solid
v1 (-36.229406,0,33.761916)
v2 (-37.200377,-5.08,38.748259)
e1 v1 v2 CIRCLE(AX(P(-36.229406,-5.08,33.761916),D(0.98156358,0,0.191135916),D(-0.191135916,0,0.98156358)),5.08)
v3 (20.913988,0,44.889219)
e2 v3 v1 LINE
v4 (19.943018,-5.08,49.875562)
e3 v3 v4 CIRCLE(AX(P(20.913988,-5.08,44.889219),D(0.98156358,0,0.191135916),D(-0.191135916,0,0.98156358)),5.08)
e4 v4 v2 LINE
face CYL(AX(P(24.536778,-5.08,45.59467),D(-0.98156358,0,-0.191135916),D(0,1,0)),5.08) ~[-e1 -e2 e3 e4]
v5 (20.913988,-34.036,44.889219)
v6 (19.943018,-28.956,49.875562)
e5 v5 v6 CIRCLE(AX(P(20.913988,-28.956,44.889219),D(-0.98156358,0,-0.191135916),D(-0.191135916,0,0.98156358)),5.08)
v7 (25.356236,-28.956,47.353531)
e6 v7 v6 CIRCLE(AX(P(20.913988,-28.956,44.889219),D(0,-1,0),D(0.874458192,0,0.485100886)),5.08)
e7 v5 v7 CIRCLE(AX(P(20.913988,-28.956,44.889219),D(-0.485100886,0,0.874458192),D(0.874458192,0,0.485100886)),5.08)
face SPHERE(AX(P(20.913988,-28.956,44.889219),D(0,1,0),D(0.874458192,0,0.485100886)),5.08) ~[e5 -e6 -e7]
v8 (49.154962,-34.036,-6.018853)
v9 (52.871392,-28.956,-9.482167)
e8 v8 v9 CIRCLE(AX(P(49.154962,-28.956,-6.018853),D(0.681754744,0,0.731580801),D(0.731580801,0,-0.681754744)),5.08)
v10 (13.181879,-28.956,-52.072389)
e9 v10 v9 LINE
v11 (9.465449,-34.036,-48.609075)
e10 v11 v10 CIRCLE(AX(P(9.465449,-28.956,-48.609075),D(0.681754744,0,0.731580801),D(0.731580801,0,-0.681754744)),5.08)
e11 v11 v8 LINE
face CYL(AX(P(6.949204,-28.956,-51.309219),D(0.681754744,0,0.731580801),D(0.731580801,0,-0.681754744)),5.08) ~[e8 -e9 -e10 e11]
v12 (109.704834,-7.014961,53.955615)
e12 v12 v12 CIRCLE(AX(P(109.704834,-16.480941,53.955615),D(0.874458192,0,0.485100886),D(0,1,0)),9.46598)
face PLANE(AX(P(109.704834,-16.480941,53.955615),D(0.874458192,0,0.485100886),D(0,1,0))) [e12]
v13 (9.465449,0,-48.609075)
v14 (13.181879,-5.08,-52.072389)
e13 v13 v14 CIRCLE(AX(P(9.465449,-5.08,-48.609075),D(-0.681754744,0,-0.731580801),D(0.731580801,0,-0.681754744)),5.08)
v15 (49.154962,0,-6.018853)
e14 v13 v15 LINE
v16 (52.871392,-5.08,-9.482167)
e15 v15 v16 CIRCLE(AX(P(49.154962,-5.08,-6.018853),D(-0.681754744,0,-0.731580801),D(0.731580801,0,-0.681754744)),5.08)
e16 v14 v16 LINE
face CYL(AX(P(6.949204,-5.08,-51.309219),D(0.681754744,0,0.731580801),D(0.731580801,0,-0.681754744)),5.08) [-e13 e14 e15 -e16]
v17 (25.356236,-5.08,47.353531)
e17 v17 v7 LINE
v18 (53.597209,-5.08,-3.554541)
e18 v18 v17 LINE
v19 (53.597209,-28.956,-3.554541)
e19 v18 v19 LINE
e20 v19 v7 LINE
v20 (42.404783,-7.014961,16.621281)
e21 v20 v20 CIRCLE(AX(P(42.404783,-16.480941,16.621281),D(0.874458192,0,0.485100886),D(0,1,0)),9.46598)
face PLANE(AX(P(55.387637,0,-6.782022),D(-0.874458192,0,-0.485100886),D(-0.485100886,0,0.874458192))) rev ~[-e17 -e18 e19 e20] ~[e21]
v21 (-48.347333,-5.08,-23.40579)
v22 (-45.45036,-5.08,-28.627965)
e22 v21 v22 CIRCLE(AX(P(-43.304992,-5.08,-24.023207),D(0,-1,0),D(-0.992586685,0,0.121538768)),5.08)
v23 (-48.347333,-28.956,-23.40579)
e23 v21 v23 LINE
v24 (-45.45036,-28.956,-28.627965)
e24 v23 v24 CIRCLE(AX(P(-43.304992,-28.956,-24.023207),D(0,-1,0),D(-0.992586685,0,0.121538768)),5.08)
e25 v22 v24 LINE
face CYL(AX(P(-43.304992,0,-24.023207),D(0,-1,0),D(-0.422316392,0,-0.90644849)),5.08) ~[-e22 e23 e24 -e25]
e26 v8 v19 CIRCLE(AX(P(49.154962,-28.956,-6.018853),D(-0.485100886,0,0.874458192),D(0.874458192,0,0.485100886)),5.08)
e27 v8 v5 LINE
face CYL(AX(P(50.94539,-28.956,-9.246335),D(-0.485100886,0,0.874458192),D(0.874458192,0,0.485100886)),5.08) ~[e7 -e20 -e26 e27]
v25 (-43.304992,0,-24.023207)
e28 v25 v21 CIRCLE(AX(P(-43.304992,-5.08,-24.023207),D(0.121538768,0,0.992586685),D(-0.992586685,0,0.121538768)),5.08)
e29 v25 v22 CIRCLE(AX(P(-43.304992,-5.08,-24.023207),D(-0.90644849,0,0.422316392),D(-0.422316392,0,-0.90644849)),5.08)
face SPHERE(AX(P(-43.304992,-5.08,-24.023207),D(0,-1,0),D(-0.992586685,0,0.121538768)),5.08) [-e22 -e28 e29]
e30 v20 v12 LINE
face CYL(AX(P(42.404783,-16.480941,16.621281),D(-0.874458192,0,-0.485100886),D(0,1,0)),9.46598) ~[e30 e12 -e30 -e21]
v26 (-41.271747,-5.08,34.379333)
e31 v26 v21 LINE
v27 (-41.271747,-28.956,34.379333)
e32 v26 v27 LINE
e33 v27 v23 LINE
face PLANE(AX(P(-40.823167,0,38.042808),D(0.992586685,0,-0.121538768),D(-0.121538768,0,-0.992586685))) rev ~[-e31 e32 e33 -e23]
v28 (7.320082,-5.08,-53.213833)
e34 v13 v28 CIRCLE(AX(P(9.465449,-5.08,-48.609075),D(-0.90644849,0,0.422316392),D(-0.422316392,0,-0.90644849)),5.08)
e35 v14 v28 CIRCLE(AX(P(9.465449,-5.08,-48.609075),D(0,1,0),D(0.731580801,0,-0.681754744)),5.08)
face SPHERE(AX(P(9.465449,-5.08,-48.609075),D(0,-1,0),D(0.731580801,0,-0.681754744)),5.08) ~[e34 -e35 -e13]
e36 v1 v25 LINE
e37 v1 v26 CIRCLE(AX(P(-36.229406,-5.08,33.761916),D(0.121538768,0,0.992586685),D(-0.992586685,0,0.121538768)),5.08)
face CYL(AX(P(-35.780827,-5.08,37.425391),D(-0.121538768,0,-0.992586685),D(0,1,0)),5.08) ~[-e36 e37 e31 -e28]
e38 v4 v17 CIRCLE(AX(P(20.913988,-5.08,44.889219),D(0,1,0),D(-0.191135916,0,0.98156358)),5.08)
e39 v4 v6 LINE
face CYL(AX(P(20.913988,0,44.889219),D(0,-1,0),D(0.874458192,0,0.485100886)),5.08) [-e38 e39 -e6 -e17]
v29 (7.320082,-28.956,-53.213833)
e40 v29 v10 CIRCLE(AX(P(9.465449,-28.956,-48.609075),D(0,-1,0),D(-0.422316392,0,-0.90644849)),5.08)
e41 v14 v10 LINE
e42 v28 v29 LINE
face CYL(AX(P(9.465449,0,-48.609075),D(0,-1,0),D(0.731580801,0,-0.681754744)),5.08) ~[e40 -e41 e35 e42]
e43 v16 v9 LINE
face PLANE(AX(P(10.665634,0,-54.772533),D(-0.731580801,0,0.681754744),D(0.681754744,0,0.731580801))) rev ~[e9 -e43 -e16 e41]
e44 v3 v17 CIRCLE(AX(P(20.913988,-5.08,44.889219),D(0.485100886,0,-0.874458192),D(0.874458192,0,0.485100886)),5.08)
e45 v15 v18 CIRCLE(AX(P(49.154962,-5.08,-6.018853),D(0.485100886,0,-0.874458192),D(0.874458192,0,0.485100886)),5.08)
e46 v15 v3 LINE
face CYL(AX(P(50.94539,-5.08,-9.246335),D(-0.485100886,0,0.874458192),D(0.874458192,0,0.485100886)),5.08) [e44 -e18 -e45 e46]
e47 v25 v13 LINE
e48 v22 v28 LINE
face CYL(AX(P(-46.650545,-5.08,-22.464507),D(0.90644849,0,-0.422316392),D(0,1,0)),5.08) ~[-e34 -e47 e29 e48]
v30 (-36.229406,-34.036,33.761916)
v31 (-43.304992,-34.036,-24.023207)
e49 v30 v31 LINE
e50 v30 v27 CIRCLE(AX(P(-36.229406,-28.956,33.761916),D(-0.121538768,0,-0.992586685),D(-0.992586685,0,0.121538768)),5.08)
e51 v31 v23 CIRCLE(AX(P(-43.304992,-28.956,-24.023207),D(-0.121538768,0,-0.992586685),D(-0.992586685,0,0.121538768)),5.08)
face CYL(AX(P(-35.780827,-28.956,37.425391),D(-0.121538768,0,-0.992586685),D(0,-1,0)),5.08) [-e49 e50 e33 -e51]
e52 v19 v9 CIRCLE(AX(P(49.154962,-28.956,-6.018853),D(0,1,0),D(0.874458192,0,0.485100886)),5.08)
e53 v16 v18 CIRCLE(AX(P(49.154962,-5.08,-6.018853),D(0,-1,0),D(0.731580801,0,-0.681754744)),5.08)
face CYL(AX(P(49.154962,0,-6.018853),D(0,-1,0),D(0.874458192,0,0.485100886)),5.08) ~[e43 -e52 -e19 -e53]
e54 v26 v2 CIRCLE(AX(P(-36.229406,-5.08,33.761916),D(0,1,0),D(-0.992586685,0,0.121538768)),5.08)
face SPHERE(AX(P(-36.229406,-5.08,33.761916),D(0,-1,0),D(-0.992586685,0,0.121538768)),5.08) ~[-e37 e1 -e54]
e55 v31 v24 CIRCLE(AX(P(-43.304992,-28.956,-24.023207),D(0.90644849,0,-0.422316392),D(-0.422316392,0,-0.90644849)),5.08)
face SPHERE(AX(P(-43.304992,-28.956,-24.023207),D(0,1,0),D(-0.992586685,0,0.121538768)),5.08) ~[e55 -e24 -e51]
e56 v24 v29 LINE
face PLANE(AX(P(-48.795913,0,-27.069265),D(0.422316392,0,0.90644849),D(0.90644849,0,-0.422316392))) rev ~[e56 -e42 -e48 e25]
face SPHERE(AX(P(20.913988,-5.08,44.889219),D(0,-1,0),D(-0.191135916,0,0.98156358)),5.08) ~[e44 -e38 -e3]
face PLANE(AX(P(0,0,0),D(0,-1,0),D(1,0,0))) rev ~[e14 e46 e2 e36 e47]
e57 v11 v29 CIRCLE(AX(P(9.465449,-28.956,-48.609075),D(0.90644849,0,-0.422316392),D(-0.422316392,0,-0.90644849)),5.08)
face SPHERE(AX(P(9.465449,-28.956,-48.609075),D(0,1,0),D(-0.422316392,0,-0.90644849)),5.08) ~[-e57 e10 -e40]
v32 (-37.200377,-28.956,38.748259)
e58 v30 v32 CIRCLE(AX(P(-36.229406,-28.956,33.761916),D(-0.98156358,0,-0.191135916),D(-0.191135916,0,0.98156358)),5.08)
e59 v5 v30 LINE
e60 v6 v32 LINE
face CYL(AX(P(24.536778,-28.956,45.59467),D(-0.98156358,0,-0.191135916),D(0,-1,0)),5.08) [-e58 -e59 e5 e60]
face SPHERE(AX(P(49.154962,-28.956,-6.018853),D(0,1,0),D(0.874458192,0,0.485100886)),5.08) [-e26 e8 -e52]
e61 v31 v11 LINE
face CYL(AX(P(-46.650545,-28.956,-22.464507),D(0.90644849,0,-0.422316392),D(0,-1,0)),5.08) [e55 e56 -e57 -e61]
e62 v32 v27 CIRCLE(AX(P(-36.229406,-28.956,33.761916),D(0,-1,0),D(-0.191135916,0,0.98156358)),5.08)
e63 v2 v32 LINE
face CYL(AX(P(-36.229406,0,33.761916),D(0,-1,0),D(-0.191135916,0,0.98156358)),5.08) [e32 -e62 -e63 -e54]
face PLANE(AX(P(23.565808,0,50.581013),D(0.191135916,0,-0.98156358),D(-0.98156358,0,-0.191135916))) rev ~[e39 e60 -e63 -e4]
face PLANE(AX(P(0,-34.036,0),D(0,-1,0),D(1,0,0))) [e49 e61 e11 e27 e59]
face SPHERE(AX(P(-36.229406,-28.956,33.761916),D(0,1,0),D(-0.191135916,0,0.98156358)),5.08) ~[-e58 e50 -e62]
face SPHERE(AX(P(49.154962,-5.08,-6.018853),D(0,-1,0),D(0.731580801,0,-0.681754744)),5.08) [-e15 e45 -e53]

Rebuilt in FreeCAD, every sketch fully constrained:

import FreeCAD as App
import Part
import Sketcher
from FreeCAD import Vector
Q = App.Units.Quantity


def edges_at(feature, points):
    """Names of the edges that pass closest to the given points."""
    edges = feature.Shape.Edges
    near = lambda p: min(range(len(edges)), key=lambda i: edges[i].distToShape(Part.Vertex(*p))[0])
    return sorted({f"Edge{near(p) + 1}" for p in points})

doc = App.newDocument("Part")
body = doc.addObject("PartDesign::Body", "Body")

sketch1 = body.newObject("Sketcher::SketchObject", "Sketch")
sketch1.AttachmentSupport = (doc.getObject("XZ_Plane"), [""])
sketch1.MapMode = "FlatFace"
sketch1.addGeometry([
    Part.LineSegment(Vector(55.387637, -6.782022, 0), Vector(23.565808, 50.581013, 0)),
    Part.LineSegment(Vector(23.565808, 50.581013, 0), Vector(-40.823167, 38.042808, 0)),
    Part.LineSegment(Vector(-40.823167, 38.042808, 0), Vector(-48.795913, -27.069265, 0)),
    Part.LineSegment(Vector(-48.795913, -27.069265, 0), Vector(10.665634, -54.772533, 0)),
    Part.LineSegment(Vector(10.665634, -54.772533, 0), Vector(55.387637, -6.782022, 0)),
], False)
sketch1.addConstraint([
    Sketcher.Constraint("Coincident", 0, 2, 1, 1),
    Sketcher.Constraint("Coincident", 1, 2, 2, 1),
    Sketcher.Constraint("Coincident", 2, 2, 3, 1),
    Sketcher.Constraint("Coincident", 3, 2, 4, 1),
    Sketcher.Constraint("Coincident", 4, 2, 0, 1),
    Sketcher.Constraint("Equal", 0, 1),
    Sketcher.Constraint("Equal", 1, 2),
    Sketcher.Constraint("Equal", 2, 3),
    Sketcher.Constraint("Equal", 3, 4),
    Sketcher.Constraint("DistanceX", 1, 2, 3, 2, 51.488801),
    Sketcher.Constraint("DistanceX", 2, 2, 0, 2, 72.36172),
    Sketcher.Constraint("DistanceY", 3, 2, 2, 2, 27.703269),
    Sketcher.Constraint("DistanceY", 3, 2, 1, 2, 92.815341),
    Sketcher.Constraint("DistanceX", -1, 1, 0, 2, 23.565808),
    Sketcher.Constraint("DistanceY", -1, 1, 0, 2, 50.581013),
])
pad1 = body.newObject("PartDesign::Pad", "Pad")
pad1.Profile = sketch1
pad1.Length = Q("1.34 in")

sketch2 = body.newObject("Sketcher::SketchObject", "Sketch001")
sketch2.Placement = App.Placement(Vector(39.476722, 0, 21.899495), App.Rotation(Vector(0, 1, 0), Vector(-0.485100886, 0, 0.874458192), Vector(0.874458192, 0, 0.485100886), "ZXY"))
sketch2.addGeometry(Part.Circle(Vector(-16.480941, -6.035983, 0), Vector(0, 0, 1), 9.46598), False)
sketch2.addConstraint([
    Sketcher.Constraint("Diameter", 0, 18.93196),
    Sketcher.Constraint("DistanceX", 0, 3, -1, 1, 16.480941),
    Sketcher.Constraint("DistanceY", 0, 3, -1, 1, 6.035983),
])
pad2 = body.newObject("PartDesign::Pad", "Pad001")
pad2.Profile = sketch2
pad2.Length = Q("3.03 in")
doc.recompute()

fillet = body.newObject("PartDesign::Fillet", "Fillet")
fillet.Base = (pad2, edges_at(pad2, [
    (39.477, 0, 21.899),
    (55.388, -17.018, -6.782),
    (23.566, -17.018, 50.581),
    (39.477, -34.036, 21.899),
    (33.027, -34.036, -30.777),
    (10.666, -17.018, -54.773),
    (33.027, 0, -30.777),
    (-8.629, 0, 44.312),
    (-8.629, -34.036, 44.312),
    (-44.81, -34.036, 5.487),
    (-19.065, -34.036, -40.921),
    (-40.823, -17.018, 38.043),
    (-48.796, -17.018, -27.069),
    (-44.81, 0, 5.487),
    (-19.065, 0, -40.921),
]))
fillet.Radius = Q("0.2 in")

doc.recompute()
